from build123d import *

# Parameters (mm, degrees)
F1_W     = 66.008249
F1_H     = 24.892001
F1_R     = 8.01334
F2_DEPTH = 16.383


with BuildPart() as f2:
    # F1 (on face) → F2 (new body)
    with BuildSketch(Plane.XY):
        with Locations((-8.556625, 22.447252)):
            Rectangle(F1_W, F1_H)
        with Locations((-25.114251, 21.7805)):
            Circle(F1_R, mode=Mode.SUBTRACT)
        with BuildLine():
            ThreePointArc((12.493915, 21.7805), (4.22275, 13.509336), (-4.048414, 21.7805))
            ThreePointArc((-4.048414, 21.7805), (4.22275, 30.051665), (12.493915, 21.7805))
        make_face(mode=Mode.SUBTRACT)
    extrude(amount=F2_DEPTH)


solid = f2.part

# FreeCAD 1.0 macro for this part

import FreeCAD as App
import Part
import Sketcher
from FreeCAD import Vector
Q = App.Units.Quantity


def add_polygon(sketch, points):
    """Adds a closed chain of lines whose ends are joined by coincident constraints."""
    first, n = sketch.GeometryCount, len(points)
    for a, b in zip(points, points[1:] + points[:1]):
        sketch.addGeometry(Part.LineSegment(App.Vector(*a, 0), App.Vector(*b, 0)), False)
    for i in range(n):
        sketch.addConstraint(Sketcher.Constraint("Coincident", first + i, 2, first + (i + 1) % n, 1))

doc = App.newDocument("Part")
body = doc.addObject("PartDesign::Body", "Body")

# Sketch on XY plane
sketch1 = body.newObject("Sketcher::SketchObject", "Sketch")
sketch1.AttachmentSupport = (doc.getObject("XY_Plane"), [""])
sketch1.MapMode = "FlatFace"
add_polygon(sketch1, [(-41.56075, 34.893253), (-41.56075, 10.001252), (24.447499, 10.001252), (24.447499, 34.893253)])  # lines 0-3
sketch1.addGeometry(Part.Circle(Vector(-25.114251, 21.7805, 0), Vector(0, 0, 1), 8.01334), False)  # 4
sketch1.addGeometry(Part.Circle(Vector(4.222751, 21.7805, 0), Vector(0, 0, 1), 8.271164), False)  # 5
sketch1.addConstraint([
    Sketcher.Constraint("Vertical", 0),
    Sketcher.Constraint("Horizontal", 1),
    Sketcher.Constraint("Vertical", 2),
    Sketcher.Constraint("Horizontal", 3),
    Sketcher.Constraint("Horizontal", 4, 3, 5, 3),
    Sketcher.Constraint("DistanceY", 0, 2, 0, 1, Q("0.98 in")),
    Sketcher.Constraint("Diameter", 4, 16.02668),
    Sketcher.Constraint("Diameter", 5, 16.542329),
    Sketcher.Constraint("DistanceX", 4, 3, 5, 3, Q("1.1550001 in")),
    Sketcher.Constraint("DistanceY", -1, 1, 4, 3, Q("0.8575 in")),
    Sketcher.Constraint("DistanceX", -1, 1, 1, 2, Q("0.9625 in")),
    Sketcher.Constraint("DistanceX", 0, 2, 4, 3, Q("0.6474999 in")),
    Sketcher.Constraint("DistanceX", 1, 1, 1, 2, 66.008249),
    Sketcher.Constraint("DistanceY", -1, 1, 0, 2, 10.001252),
])
pad1 = body.newObject("PartDesign::Pad", "Pad")
pad1.Profile = sketch1
pad1.Length = Q("0.645 in")

doc.recompute()
